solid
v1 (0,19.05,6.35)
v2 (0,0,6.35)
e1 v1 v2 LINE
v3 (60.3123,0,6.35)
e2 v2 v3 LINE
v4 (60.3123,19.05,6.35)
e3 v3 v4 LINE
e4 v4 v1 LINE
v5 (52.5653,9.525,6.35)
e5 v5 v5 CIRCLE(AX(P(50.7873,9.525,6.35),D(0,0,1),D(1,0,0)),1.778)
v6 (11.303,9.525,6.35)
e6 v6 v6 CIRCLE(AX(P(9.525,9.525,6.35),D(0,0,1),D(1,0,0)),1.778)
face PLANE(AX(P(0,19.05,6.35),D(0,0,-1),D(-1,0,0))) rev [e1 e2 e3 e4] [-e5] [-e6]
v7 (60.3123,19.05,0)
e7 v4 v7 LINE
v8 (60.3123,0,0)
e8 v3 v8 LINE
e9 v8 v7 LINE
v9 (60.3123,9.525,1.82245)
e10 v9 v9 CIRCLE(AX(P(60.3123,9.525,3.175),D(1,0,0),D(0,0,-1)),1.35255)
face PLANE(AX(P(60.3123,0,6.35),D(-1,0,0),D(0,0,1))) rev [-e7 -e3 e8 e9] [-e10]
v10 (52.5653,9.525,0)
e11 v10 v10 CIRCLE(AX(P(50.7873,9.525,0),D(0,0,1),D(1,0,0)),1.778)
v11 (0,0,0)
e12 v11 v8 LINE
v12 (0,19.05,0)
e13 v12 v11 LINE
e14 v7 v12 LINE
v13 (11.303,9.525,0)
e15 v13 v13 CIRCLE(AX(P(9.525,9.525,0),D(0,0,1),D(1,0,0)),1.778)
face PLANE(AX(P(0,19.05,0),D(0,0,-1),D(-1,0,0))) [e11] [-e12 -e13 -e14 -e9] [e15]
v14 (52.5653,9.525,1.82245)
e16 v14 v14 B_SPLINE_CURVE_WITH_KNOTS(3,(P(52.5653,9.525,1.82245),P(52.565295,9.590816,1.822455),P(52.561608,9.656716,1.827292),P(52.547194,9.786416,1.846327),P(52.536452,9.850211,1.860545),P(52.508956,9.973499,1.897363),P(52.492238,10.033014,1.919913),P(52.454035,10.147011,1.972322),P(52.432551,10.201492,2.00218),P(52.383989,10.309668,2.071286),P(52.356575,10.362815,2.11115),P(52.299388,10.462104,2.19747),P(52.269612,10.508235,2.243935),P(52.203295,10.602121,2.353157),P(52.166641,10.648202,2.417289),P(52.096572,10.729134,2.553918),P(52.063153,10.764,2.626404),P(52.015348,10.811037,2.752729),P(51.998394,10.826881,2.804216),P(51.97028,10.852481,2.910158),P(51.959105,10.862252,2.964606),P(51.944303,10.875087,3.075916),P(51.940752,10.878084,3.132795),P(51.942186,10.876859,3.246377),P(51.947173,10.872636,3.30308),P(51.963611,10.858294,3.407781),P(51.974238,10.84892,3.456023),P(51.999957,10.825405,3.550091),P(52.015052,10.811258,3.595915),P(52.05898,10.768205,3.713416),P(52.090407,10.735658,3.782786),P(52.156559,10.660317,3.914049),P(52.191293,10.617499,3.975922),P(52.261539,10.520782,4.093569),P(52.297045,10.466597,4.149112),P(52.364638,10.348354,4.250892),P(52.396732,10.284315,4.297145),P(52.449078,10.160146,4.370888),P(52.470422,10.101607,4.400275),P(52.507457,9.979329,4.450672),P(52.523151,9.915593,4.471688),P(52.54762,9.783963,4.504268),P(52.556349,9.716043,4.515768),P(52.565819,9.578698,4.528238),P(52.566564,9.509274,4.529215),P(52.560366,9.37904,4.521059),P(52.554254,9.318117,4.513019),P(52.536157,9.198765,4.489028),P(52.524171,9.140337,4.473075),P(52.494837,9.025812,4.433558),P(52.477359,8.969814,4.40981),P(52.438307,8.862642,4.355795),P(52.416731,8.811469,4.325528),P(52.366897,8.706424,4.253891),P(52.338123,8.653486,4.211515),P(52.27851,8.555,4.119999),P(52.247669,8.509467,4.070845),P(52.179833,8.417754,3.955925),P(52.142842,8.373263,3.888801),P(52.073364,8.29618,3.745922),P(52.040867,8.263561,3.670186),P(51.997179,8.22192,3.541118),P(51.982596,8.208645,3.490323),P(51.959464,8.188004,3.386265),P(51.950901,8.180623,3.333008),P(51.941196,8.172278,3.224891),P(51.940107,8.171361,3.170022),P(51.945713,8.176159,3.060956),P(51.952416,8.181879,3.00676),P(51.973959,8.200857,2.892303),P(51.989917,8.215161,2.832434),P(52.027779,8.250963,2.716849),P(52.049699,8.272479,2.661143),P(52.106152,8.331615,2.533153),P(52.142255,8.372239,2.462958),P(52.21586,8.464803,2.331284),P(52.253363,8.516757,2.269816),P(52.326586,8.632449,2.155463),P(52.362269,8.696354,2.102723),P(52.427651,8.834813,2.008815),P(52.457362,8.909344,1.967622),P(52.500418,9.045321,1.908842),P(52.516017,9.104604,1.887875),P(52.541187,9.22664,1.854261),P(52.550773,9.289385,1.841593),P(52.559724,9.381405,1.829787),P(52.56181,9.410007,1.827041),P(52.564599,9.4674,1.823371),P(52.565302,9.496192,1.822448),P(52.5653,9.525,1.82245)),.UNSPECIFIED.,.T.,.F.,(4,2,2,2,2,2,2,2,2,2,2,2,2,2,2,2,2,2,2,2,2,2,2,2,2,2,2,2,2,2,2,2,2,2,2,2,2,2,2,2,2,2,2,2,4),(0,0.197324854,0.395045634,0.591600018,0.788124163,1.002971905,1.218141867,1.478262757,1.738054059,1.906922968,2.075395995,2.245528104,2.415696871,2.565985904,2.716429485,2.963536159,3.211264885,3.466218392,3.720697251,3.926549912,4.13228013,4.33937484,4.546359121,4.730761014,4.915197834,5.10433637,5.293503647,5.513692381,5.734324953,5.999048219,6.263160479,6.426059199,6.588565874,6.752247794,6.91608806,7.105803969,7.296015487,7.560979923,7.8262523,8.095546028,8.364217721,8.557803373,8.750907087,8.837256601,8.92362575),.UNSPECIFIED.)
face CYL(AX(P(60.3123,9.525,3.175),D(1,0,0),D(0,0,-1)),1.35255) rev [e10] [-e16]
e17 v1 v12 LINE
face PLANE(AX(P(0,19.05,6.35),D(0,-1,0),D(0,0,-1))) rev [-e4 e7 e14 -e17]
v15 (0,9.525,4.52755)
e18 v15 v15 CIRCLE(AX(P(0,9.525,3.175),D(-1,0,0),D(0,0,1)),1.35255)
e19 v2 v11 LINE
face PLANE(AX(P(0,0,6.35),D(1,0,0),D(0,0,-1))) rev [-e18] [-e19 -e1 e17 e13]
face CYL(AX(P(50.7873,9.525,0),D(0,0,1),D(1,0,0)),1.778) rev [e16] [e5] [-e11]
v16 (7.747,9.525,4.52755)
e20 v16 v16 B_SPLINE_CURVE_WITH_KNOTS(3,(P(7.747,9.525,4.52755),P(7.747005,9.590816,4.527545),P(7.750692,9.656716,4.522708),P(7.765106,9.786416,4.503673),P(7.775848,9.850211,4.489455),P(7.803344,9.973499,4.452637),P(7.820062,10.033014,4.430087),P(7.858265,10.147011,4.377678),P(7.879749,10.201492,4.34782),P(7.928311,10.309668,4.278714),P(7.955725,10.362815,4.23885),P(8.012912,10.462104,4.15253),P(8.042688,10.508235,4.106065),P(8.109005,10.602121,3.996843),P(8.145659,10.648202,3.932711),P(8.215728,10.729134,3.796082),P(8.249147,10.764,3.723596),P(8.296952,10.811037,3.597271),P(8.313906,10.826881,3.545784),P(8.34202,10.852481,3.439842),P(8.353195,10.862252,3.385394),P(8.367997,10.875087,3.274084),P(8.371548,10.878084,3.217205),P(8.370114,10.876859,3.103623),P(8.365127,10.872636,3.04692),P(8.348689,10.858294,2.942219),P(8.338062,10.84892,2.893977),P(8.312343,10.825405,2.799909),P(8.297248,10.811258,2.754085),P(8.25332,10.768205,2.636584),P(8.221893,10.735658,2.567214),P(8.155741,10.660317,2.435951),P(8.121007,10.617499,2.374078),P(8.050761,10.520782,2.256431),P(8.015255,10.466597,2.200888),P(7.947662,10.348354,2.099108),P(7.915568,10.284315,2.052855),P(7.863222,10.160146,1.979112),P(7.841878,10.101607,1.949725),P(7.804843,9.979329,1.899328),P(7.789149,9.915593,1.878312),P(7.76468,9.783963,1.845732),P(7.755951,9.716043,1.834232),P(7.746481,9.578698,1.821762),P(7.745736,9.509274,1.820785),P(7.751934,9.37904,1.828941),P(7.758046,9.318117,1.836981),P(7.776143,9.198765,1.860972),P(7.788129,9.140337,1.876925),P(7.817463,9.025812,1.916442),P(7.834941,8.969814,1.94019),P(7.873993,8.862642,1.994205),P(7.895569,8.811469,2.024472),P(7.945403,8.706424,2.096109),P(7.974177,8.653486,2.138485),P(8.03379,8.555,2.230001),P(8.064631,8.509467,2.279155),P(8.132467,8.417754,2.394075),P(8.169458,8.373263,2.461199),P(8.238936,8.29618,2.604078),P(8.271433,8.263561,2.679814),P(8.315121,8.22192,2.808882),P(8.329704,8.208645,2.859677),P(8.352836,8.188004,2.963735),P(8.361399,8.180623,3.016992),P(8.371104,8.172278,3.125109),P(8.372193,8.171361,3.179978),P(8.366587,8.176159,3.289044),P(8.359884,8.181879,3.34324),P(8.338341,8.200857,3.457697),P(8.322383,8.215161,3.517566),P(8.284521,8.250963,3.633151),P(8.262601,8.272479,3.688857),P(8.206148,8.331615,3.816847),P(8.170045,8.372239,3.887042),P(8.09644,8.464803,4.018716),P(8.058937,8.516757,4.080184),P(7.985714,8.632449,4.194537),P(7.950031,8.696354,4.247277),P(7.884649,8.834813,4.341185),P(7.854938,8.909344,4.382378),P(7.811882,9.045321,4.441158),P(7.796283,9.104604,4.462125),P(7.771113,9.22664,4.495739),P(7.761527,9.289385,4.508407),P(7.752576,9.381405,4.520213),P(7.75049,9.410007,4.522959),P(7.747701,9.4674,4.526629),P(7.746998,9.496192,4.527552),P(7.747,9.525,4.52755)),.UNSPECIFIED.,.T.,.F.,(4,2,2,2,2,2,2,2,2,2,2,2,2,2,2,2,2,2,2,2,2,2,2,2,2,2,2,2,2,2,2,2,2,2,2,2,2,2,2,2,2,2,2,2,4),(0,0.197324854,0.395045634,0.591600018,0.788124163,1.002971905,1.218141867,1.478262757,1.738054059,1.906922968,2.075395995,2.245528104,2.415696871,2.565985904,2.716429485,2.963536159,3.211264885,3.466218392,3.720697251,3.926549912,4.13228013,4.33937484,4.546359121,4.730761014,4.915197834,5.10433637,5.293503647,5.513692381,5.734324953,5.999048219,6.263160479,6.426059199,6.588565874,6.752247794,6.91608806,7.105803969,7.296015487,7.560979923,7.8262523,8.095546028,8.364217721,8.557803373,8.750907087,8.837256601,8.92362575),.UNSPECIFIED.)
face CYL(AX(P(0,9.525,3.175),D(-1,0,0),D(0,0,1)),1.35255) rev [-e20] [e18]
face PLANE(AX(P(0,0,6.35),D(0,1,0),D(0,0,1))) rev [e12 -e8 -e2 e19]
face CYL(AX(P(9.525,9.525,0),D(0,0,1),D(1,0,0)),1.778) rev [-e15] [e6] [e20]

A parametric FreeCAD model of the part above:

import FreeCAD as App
import Part
import Sketcher

V = App.Vector
Q = App.Units.Quantity


def add_polygon(sketch, points):
    """Adds a closed chain of lines whose ends are joined by coincident constraints."""
    first, n = sketch.GeometryCount, len(points)
    for a, b in zip(points, points[1:] + points[:1]):
        sketch.addGeometry(Part.LineSegment(App.Vector(*a, 0), App.Vector(*b, 0)), False)
    for i in range(n):
        sketch.addConstraint(Sketcher.Constraint("Coincident", first + i, 2, first + (i + 1) % n, 1))

doc = App.newDocument("Part")
body = doc.addObject("PartDesign::Body", "Body")

sketch1 = doc.addObject("Sketcher::SketchObject", "Sketch")
body.addObject(sketch1)
sketch1.AttachmentSupport = (doc.XY_Plane, [""])
sketch1.MapMode = "FlatFace"
add_polygon(sketch1, [(0, 19), (0, 0), (60, 0), (60, 19)])
sketch1.addConstraint([
    Sketcher.Constraint("Vertical", 0),
    Sketcher.Constraint("Horizontal", 1),
    Sketcher.Constraint("Vertical", 2),
    Sketcher.Constraint("Horizontal", 3),
    Sketcher.Constraint("Coincident", 0, 2, -1, 1),
    Sketcher.Constraint("DistanceY", 0, 2, 0, 1, Q("0.75 in")),
    Sketcher.Constraint("DistanceX", 1, 1, 1, 2, Q("2.3745 in")),
])
pad1 = doc.addObject("PartDesign::Pad", "Pad")
body.addObject(pad1)
pad1.Profile = sketch1
pad1.Length = Q("0.25 in")

sketch2 = doc.addObject("Sketcher::SketchObject", "Sketch001")
body.addObject(sketch2)
sketch2.AttachmentSupport = (doc.XY_Plane, [""])
sketch2.MapMode = "FlatFace"
sketch2.AttachmentOffset = App.Placement(V(0, 0, 0.25 * 25.4), App.Rotation())
sketch2.addGeometry([
    Part.Circle(V(9.5, 9.5, 0), V(0, 0, 1), 1.8),
    Part.Circle(V(50.8, 9.5, 0), V(0, 0, 1), 1.8),
], False)
sketch2.addConstraint([
    Sketcher.Constraint("Equal", 0, 1),
    Sketcher.Constraint("Horizontal", 0, 3, 1, 3),
    Sketcher.Constraint("Diameter", 0, Q("0.14 in")),
    Sketcher.Constraint("DistanceX", -1, 1, 0, 3, Q("0.375 in")),
    Sketcher.Constraint("DistanceY", -1, 1, 0, 3, Q("0.375 in")),
    Sketcher.Constraint("DistanceX", -1, 1, 1, 3, Q("1.9995 in")),
])
pocket1 = doc.addObject("PartDesign::Pocket", "Pocket")
body.addObject(pocket1)
pocket1.Profile = sketch2
pocket1.Type = "ThroughAll"

sketch3 = doc.addObject("Sketcher::SketchObject", "Sketch002")
body.addObject(sketch3)
sketch3.AttachmentSupport = (doc.YZ_Plane, [""])
sketch3.MapMode = "FlatFace"
sketch3.addGeometry(Part.Circle(V(9.5, 3.2, 0), V(0, 0, 1), 1.4), False)
sketch3.addConstraint([
    Sketcher.Constraint("Diameter", 0, Q("0.1065 in")),
    Sketcher.Constraint("DistanceX", -1, 1, 0, 3, Q("0.375 in")),
    Sketcher.Constraint("DistanceY", -1, 1, 0, 3, Q("0.125 in")),
])
doc.recompute()
hole = doc.addObject("PartDesign::Hole", "Hole")
body.addObject(hole)
hole.Profile = sketch3
hole.ThreadType = "None"
hole.Diameter = Q("0.1065 in")
hole.DepthType = "Dimension"
hole.Depth = Q("0.375 in")
hole.DrillPoint = "Angled"
hole.DrillPointAngle = 118
hole.Reversed = True

sketch4 = doc.addObject("Sketcher::SketchObject", "Sketch003")
body.addObject(sketch4)
sketch4.AttachmentSupport = (doc.YZ_Plane, [""])
sketch4.MapMode = "FlatFace"
sketch4.AttachmentOffset = App.Placement(V(0, 0, 2.3745 * 25.4), App.Rotation())
sketch4.addGeometry(Part.Circle(V(9.5, 3.2, 0), V(0, 0, 1), 1.4), False)
sketch4.addConstraint([
    Sketcher.Constraint("Diameter", 0, Q("0.1065 in")),
    Sketcher.Constraint("DistanceX", -1, 1, 0, 3, Q("0.375 in")),
    Sketcher.Constraint("DistanceY", -1, 1, 0, 3, Q("0.125 in")),
])
doc.recompute()
hole2 = doc.addObject("PartDesign::Hole", "Hole001")
body.addObject(hole2)
hole2.Profile = sketch4
hole2.ThreadType = "None"
hole2.Diameter = Q("0.1065 in")
hole2.DepthType = "Dimension"
hole2.Depth = Q("0.375 in")
hole2.DrillPoint = "Angled"
hole2.DrillPointAngle = 118

doc.recompute()
